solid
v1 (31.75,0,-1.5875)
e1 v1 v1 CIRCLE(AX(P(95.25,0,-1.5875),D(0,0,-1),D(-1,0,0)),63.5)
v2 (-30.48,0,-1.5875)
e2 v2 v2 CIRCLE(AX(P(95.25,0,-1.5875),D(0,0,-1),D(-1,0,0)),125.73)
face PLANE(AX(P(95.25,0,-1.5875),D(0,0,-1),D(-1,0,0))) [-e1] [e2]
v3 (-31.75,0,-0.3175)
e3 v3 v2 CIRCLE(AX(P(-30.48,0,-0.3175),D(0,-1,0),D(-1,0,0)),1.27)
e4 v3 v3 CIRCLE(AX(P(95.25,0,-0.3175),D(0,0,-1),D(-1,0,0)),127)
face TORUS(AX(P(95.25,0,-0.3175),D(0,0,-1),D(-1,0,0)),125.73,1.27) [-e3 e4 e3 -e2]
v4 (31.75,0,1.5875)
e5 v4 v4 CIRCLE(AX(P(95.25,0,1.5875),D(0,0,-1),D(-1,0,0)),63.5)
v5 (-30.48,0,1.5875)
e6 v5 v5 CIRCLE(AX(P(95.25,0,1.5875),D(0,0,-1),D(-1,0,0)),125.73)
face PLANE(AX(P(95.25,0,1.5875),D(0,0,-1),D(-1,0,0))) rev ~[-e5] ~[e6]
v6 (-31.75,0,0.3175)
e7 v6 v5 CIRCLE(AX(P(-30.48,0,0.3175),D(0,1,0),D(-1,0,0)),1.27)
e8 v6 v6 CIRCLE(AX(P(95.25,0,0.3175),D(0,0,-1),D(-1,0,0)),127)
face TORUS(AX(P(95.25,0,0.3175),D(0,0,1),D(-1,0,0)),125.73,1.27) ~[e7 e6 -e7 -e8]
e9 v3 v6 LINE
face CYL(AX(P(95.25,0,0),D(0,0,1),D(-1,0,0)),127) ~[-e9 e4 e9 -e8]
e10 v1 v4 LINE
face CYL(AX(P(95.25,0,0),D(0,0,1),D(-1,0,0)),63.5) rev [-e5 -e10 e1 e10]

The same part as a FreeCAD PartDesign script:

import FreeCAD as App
import Part
import Sketcher

V = App.Vector
Q = App.Units.Quantity


def edges_at(feature, points):
    """Names of the edges that pass closest to the given points."""
    edges = feature.Shape.Edges
    near = lambda p: min(range(len(edges)), key=lambda i: edges[i].distToShape(Part.Vertex(*p))[0])
    return sorted({f"Edge{near(p) + 1}" for p in points})

doc = App.newDocument("Part")
params = doc.addObject("Spreadsheet::Sheet", "Params")
for row, (alias, value) in enumerate([
    ("sketch1_width", "2.5 in"),
    ("sketch1_height", "0.125 in"),
    ("revolution_angle", "360 deg"),
    ("fillet_radius", "0.05 in"),
], start=1):
    params.set(f"A{row}", alias)
    params.set(f"B{row}", "=" + value)
    params.setAlias(f"B{row}", alias)

body = doc.addObject("PartDesign::Body", "Body")

# Sketch on XZ plane
sketch1 = body.newObject("Sketcher::SketchObject", "Sketch")
sketch1.AttachmentSupport = (doc.getObject("XZ_Plane"), [""])
sketch1.MapMode = "FlatFace"
sketch1.addGeometry([
    Part.LineSegment(V(-31.75, 1.5875, 0), V(-31.75, -1.5875, 0)),
    Part.LineSegment(V(-31.75, -1.5875, 0), V(31.75, -1.5875, 0)),
    Part.LineSegment(V(31.75, -1.5875, 0), V(31.75, 1.5875, 0)),
    Part.LineSegment(V(31.75, 1.5875, 0), V(-31.75, 1.5875, 0)),
], False)
sketch1.addGeometry(Part.LineSegment(V(95.25, 1.5875, 0), V(95.25, -1.5875, 0)), True)  # axis
sketch1.addConstraint([
    Sketcher.Constraint("Coincident", 0, 2, 1, 1),
    Sketcher.Constraint("Coincident", 1, 2, 2, 1),
    Sketcher.Constraint("Coincident", 2, 2, 3, 1),
    Sketcher.Constraint("Coincident", 3, 2, 0, 1),
    Sketcher.Constraint("Vertical", 0),
    Sketcher.Constraint("Horizontal", 1),
    Sketcher.Constraint("Vertical", 2),
    Sketcher.Constraint("Horizontal", 3),
    Sketcher.Constraint("Vertical", 4),
    Sketcher.Constraint("Symmetric", 0, 2, 2, 2, -1, 1),
    Sketcher.Constraint("Horizontal", 3, 2, 4, 1),
    Sketcher.Constraint("Horizontal", 1, 2, 4, 2),
    Sketcher.Constraint("DistanceX", 1, 1, 1, 2, Q("2.5 in")),
    Sketcher.Constraint("DistanceX", 3, 2, 4, 1, Q("5 in")),
    Sketcher.Constraint("DistanceY", 0, 2, 0, 1, Q("0.125 in")),
])
sketch1.setExpression("Constraints[12]", "Params.sketch1_width")
sketch1.setExpression("Constraints[14]", "Params.sketch1_height")
revolution = body.newObject("PartDesign::Revolution", "Revolution")
revolution.Profile = sketch1
revolution.ReferenceAxis = (sketch1, ["Axis0"])
revolution.setExpression("Angle", "Params.revolution_angle")
doc.recompute()

fillet = body.newObject("PartDesign::Fillet", "Fillet")
fillet.Base = (revolution, edges_at(revolution, [(222.25, 0, -1.587), (222.25, 0, 1.587)]))
fillet.setExpression("Radius", "Params.fillet_radius")

doc.recompute()
